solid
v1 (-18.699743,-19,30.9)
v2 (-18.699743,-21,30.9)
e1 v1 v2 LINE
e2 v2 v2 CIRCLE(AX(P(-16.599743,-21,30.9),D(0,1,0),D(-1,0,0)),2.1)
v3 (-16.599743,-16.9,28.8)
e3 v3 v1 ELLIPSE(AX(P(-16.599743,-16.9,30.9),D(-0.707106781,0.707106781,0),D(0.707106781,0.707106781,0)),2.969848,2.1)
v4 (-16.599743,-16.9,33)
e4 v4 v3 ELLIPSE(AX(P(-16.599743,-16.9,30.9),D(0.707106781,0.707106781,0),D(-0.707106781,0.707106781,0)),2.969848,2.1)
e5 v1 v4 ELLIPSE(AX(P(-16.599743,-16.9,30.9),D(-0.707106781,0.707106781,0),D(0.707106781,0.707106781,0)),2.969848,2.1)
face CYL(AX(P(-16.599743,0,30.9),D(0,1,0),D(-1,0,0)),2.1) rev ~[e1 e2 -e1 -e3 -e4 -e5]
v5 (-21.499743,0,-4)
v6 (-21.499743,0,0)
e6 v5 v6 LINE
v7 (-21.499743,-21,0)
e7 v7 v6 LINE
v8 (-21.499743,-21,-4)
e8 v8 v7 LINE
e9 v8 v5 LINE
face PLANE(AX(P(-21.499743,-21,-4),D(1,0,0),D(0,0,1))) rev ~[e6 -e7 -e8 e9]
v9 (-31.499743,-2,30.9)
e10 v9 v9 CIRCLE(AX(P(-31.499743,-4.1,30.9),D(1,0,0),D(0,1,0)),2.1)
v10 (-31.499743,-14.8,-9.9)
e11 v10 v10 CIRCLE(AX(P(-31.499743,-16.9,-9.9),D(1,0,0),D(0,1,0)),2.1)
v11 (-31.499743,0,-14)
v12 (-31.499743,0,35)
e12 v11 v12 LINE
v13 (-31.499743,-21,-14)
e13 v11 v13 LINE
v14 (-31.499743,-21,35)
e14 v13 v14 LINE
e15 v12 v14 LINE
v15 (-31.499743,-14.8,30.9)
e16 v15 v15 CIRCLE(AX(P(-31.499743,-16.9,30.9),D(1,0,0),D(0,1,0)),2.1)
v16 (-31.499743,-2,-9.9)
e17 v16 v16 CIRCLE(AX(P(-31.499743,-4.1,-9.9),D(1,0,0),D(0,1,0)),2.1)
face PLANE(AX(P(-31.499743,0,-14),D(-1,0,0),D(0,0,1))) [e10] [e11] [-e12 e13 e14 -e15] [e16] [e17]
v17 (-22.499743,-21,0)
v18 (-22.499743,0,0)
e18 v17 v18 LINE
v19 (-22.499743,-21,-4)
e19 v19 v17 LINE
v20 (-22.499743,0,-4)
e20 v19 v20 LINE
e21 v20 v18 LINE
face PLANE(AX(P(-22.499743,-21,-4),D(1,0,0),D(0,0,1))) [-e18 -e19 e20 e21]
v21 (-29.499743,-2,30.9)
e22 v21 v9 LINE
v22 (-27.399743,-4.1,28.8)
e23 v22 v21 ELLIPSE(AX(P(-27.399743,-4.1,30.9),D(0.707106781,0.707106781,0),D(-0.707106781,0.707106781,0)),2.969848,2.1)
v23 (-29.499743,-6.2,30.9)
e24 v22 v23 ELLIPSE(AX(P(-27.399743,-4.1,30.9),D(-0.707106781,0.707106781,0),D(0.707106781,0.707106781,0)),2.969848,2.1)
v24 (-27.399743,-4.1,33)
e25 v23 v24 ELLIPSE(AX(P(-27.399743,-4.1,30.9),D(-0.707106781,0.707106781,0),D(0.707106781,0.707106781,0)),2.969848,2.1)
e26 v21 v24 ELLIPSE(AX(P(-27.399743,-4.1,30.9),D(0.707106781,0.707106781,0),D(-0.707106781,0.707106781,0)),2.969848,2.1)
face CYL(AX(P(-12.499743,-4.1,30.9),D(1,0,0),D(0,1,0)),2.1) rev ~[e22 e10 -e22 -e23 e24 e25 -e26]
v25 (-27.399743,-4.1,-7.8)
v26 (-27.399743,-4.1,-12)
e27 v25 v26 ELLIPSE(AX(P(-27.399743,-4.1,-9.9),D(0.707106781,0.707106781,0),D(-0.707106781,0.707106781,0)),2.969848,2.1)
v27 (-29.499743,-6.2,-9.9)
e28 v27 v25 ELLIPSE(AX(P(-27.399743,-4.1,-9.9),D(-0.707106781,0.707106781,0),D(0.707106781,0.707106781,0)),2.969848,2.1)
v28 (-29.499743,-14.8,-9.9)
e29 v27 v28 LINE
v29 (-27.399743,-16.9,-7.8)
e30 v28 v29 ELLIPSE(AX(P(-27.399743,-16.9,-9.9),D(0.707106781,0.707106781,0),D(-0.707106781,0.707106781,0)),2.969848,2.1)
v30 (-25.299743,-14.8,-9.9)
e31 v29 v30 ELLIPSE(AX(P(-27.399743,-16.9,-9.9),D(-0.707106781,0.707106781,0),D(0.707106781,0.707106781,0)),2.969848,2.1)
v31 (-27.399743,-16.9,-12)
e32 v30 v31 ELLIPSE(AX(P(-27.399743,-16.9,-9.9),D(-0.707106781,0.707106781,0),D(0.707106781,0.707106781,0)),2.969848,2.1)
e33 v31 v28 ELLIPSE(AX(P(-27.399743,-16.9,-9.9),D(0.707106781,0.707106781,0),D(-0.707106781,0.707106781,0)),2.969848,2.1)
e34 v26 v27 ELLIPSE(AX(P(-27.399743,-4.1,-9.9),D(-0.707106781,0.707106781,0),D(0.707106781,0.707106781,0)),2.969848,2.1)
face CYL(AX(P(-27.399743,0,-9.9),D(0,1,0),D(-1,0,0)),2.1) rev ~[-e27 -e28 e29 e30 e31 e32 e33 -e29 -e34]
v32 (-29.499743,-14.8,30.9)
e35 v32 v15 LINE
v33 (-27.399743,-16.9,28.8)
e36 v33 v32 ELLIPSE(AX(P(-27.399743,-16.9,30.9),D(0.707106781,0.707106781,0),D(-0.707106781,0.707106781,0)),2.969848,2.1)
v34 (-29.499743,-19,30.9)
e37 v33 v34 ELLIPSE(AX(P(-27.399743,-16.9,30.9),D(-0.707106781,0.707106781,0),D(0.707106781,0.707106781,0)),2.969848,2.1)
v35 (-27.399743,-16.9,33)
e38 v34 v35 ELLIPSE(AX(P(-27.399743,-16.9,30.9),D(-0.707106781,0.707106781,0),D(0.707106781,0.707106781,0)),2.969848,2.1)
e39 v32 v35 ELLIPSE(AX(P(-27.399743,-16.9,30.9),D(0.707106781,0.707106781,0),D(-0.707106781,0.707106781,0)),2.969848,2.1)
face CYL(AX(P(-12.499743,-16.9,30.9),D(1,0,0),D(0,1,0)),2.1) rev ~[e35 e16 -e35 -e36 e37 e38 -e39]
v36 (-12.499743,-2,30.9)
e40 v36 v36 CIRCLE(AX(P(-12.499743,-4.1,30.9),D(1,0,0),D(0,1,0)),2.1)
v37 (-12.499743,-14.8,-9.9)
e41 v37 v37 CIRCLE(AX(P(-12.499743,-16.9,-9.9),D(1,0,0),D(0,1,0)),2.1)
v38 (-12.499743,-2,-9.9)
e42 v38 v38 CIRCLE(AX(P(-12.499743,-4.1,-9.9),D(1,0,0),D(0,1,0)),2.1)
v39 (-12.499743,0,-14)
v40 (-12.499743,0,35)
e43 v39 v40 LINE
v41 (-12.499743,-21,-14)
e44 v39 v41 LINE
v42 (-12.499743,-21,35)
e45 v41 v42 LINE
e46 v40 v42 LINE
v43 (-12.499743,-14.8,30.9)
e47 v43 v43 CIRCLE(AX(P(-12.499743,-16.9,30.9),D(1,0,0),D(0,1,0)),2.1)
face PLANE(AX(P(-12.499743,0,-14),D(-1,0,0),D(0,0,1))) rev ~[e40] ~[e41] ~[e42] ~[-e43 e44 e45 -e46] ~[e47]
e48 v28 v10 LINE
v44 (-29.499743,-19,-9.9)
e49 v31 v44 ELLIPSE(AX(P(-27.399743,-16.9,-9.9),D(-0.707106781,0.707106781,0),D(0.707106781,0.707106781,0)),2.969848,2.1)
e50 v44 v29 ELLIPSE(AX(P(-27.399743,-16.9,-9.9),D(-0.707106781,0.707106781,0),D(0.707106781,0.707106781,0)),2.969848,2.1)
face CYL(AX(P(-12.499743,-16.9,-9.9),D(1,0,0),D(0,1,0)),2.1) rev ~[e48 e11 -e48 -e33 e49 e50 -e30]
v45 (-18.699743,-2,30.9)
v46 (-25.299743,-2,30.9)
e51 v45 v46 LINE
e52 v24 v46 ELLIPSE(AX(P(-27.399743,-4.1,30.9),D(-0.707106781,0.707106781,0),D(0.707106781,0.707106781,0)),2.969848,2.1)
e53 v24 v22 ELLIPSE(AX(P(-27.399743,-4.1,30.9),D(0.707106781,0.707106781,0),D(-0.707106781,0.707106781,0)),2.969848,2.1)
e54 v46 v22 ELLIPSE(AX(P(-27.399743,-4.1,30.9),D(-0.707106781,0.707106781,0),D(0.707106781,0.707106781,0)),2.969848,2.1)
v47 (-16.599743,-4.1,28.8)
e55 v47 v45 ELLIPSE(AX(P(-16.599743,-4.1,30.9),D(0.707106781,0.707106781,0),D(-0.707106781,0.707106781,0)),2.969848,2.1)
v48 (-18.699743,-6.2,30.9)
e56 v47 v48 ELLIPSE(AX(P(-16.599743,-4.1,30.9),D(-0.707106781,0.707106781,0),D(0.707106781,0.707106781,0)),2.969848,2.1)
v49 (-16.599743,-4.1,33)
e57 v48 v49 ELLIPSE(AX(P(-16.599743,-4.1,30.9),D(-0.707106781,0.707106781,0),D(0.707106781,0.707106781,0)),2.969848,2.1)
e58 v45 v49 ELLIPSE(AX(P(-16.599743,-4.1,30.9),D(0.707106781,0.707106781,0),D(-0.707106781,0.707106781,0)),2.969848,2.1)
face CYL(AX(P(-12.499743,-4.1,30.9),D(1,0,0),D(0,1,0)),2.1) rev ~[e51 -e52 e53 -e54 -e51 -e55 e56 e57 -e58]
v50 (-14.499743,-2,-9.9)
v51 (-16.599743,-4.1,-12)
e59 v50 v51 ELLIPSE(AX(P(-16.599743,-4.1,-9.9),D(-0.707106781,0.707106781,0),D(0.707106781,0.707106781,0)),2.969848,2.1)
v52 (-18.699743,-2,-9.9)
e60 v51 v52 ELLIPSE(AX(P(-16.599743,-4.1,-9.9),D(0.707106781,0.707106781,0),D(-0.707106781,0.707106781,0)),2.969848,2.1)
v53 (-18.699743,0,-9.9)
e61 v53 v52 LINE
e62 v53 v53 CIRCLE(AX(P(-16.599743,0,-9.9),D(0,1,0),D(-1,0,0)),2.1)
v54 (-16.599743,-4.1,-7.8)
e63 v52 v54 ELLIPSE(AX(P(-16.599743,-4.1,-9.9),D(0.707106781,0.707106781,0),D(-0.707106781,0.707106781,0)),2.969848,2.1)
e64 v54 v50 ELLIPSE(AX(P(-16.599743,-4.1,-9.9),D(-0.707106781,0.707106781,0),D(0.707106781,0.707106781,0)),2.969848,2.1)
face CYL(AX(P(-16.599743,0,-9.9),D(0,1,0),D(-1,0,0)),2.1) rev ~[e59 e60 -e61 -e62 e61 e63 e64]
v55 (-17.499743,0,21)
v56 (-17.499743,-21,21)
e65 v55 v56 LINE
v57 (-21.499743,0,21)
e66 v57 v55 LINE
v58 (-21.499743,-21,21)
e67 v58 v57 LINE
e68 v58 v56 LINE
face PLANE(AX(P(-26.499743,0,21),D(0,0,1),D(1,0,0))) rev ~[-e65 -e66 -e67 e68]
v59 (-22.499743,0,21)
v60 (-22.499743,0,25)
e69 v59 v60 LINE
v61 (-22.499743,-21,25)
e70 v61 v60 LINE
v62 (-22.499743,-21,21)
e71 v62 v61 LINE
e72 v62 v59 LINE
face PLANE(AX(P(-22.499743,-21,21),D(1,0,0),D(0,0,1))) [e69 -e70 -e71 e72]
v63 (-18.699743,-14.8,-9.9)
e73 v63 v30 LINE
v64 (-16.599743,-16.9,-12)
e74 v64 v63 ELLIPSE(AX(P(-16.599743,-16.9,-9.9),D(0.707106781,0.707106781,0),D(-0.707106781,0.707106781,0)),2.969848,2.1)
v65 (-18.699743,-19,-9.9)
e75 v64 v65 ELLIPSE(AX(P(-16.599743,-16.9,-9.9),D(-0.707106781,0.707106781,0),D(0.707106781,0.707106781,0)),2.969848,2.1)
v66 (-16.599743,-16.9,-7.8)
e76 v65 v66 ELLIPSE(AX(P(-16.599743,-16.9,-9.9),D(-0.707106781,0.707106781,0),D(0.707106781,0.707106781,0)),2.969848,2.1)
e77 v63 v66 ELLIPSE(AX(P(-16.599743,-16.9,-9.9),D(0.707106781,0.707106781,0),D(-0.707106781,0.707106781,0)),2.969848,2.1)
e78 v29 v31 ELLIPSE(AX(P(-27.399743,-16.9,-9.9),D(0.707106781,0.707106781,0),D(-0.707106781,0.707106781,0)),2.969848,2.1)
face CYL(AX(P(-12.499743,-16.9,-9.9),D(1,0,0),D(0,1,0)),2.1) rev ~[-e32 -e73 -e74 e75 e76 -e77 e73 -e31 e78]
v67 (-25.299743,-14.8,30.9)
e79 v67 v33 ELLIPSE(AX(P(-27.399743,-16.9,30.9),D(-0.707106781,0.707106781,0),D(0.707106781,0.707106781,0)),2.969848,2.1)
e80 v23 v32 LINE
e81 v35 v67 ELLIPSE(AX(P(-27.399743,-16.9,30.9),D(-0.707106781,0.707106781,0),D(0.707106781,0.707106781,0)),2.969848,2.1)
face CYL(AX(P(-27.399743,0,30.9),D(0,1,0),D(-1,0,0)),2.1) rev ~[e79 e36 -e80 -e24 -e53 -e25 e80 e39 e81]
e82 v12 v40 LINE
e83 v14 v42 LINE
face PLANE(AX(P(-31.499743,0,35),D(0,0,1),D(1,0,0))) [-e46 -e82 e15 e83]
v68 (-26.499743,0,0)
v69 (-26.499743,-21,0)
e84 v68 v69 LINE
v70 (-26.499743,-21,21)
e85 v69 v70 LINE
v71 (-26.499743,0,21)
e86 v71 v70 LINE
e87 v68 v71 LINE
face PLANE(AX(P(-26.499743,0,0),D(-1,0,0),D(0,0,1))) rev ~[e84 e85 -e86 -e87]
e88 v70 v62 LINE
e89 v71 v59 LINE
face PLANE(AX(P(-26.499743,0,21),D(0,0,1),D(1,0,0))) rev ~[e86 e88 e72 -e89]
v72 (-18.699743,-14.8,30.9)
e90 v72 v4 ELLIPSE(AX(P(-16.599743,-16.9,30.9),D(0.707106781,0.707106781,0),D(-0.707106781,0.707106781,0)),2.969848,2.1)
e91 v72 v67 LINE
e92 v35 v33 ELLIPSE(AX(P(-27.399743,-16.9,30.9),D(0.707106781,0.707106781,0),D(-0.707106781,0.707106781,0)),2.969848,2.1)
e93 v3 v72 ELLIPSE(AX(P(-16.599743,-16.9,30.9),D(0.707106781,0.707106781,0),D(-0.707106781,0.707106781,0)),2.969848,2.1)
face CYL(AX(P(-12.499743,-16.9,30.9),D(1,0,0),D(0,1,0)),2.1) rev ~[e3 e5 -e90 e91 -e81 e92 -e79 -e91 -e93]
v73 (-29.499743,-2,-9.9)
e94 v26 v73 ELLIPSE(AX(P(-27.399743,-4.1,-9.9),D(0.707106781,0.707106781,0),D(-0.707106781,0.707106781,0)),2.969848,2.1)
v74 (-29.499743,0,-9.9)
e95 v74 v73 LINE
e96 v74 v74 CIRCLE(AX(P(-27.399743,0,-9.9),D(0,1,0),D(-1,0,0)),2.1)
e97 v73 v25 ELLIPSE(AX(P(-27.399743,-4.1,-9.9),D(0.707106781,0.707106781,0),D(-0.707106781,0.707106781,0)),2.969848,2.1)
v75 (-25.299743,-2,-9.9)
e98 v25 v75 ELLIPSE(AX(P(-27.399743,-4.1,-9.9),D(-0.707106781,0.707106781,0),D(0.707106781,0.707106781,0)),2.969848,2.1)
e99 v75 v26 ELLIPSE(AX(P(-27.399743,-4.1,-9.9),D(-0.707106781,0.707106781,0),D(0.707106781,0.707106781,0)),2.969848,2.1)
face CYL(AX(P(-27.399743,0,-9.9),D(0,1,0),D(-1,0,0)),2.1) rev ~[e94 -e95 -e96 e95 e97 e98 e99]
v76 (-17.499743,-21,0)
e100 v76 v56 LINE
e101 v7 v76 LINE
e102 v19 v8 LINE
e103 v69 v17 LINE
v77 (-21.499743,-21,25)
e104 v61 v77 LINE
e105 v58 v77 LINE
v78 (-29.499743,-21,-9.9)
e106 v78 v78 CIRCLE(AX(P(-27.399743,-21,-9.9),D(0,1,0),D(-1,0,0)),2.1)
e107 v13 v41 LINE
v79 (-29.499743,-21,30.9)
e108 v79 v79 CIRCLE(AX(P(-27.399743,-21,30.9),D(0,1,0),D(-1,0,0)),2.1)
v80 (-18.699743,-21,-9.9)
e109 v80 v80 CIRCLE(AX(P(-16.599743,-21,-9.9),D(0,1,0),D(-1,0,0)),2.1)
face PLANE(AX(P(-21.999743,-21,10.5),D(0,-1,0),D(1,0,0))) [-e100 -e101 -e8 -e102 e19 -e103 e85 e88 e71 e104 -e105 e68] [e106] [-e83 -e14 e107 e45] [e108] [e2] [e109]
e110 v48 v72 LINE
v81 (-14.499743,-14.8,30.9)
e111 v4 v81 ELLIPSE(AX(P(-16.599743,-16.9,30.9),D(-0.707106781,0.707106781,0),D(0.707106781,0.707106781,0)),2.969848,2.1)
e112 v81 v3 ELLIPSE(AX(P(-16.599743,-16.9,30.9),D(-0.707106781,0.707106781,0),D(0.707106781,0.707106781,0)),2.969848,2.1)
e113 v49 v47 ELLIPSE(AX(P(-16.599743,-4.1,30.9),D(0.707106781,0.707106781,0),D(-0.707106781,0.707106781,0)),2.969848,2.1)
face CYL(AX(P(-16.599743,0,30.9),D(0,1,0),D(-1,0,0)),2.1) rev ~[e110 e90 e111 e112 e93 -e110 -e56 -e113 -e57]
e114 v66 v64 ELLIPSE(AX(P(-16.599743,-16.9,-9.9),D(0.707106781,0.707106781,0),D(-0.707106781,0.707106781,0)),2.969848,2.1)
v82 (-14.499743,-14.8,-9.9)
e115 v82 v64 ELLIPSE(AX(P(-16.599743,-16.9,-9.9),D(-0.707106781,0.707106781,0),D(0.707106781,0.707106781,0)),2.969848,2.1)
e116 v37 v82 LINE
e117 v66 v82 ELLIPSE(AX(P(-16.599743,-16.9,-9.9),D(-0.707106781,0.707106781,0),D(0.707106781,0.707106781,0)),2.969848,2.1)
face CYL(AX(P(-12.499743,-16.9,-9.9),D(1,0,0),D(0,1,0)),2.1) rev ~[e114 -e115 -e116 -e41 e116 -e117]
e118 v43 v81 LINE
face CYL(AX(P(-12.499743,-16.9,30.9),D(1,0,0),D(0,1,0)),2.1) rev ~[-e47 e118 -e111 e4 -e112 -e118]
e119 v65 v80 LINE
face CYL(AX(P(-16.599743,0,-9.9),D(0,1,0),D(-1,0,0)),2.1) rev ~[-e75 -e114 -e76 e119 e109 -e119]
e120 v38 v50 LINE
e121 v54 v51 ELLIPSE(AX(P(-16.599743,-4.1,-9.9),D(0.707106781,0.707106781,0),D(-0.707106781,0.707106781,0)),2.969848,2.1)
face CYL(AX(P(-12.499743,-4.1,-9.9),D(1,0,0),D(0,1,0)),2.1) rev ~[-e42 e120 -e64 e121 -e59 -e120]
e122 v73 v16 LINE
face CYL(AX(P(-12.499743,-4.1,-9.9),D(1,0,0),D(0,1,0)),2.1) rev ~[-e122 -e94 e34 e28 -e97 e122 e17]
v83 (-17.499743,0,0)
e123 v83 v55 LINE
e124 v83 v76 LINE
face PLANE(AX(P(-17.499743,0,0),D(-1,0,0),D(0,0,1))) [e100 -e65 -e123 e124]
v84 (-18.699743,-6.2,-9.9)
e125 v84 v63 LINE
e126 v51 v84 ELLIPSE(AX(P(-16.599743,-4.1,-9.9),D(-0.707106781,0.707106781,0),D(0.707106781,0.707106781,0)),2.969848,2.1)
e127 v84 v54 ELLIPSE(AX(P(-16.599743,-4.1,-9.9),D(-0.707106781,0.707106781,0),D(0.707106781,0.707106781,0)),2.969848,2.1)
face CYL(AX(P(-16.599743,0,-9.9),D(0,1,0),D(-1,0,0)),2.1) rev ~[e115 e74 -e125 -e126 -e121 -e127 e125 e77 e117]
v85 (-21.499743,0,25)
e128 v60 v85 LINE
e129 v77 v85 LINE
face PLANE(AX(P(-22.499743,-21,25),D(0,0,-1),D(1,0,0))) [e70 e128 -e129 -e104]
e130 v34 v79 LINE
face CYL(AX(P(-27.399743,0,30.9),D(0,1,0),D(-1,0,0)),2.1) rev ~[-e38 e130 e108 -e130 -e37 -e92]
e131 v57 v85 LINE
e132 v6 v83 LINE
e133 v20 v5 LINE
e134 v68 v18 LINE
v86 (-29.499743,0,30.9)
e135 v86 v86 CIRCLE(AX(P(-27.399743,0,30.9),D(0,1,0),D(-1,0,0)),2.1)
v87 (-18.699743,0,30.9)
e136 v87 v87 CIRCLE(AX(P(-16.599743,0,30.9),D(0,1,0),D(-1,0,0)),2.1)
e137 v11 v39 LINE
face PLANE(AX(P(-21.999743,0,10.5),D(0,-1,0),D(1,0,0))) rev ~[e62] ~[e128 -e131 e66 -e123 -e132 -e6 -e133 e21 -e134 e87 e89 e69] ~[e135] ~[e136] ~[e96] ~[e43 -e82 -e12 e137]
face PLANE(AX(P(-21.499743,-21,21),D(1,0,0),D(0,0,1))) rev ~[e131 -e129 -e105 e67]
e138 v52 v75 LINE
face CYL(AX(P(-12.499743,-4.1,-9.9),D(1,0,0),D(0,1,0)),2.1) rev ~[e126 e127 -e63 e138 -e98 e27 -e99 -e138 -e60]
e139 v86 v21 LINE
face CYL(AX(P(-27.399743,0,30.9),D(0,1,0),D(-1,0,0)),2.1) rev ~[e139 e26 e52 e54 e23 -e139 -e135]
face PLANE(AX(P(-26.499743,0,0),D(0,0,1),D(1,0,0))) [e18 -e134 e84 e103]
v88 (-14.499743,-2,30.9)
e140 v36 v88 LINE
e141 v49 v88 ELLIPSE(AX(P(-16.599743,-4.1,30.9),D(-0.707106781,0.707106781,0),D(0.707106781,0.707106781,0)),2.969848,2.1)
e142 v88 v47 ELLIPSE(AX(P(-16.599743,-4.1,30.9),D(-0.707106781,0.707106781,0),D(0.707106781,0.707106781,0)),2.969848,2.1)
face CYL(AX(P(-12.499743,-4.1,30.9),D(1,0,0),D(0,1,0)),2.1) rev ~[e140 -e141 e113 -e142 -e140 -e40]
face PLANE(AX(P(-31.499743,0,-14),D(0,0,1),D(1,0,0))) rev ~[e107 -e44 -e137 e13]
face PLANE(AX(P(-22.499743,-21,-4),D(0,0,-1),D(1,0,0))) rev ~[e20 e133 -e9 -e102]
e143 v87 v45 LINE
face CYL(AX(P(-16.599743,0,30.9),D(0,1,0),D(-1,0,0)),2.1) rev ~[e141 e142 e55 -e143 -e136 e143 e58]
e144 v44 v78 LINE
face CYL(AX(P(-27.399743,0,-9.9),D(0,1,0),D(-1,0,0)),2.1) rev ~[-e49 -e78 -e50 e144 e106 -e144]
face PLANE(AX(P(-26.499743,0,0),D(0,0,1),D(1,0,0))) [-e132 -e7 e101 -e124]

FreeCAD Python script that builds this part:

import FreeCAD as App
import Part
import Sketcher
Q = App.Units.Quantity


def add_polygon(sketch, points):
    """Adds a closed chain of lines whose ends are joined by coincident constraints."""
    first, n = sketch.GeometryCount, len(points)
    for a, b in zip(points, points[1:] + points[:1]):
        sketch.addGeometry(Part.LineSegment(App.Vector(*a, 0), App.Vector(*b, 0)), False)
    for i in range(n):
        sketch.addConstraint(Sketcher.Constraint("Coincident", first + i, 2, first + (i + 1) % n, 1))

doc = App.newDocument("Part")
params = doc.addObject("Spreadsheet::Sheet", "Params")
for row, (alias, value) in enumerate([
    ("sketch1_width", "19 mm"),
    ("sketch1_width2", "9 mm"),
    ("sketch1_height", "49 mm"),
    ("sketch1_height2", "21 mm"),
    ("pad1_length", "21 mm"),
    ("sketch2_width", "1 mm"),
    ("sketch2_height", "4 mm"),
    ("pocket1_length", "25 mm"),
    ("sketch3_diameter", "4.2 mm"),
    ("pocket2_length", "25 mm"),
    ("sketch4_diameter", "4.2 mm"),
    ("pocket3_length", "25 mm"),
], start=1):
    params.set(f"A{row}", alias)
    params.set(f"B{row}", "=" + value)
    params.setAlias(f"B{row}", alias)

body = doc.addObject("PartDesign::Body", "Body")

# Sketch on XZ plane
sketch1 = body.newObject("Sketcher::SketchObject", "Sketch")
sketch1.AttachmentSupport = (doc.getObject("XZ_Plane"), [""])
sketch1.MapMode = "FlatFace"
add_polygon(sketch1, [(-31, 35), (-31, -14), (-12, -14), (-12, 35)])  # lines 0-3
add_polygon(sketch1, [(-17, 0), (-26, 0), (-26, 21), (-17, 21)])  # lines 4-7
sketch1.addConstraint([
    Sketcher.Constraint("Vertical", 0),
    Sketcher.Constraint("Horizontal", 1),
    Sketcher.Constraint("Vertical", 2),
    Sketcher.Constraint("Horizontal", 3),
    Sketcher.Constraint("Horizontal", 4),
    Sketcher.Constraint("Vertical", 5),
    Sketcher.Constraint("Horizontal", 6),
    Sketcher.Constraint("Vertical", 7),
    Sketcher.Constraint("PointOnObject", 4, 2, -1),
    Sketcher.Constraint("DistanceX", 1, 1, 1, 2, Q("19 mm")),
    Sketcher.Constraint("DistanceX", 4, 2, 4, 1, Q("9 mm")),
    Sketcher.Constraint("DistanceY", 0, 2, 0, 1, Q("49 mm")),
    Sketcher.Constraint("DistanceY", 5, 1, 5, 2, Q("21 mm")),
    Sketcher.Constraint("DistanceY", 0, 2, -1, 1, Q("14 mm")),
    Sketcher.Constraint("DistanceX", 0, 2, 4, 2, Q("5 mm")),
    Sketcher.Constraint("DistanceX", 0, 2, -1, 1, Q("31.499743 mm")),
])
sketch1.setExpression("Constraints[17]", "Params.sketch1_width")
sketch1.setExpression("Constraints[18]", "Params.sketch1_width2")
sketch1.setExpression("Constraints[19]", "Params.sketch1_height")
sketch1.setExpression("Constraints[20]", "Params.sketch1_height2")
pad1 = body.newObject("PartDesign::Pad", "Pad")
pad1.Profile = sketch1
pad1.setExpression("Length", "Params.pad1_length")

# Sketch on XZ plane
sketch2 = body.newObject("Sketcher::SketchObject", "Sketch001")
sketch2.AttachmentSupport = (doc.getObject("XZ_Plane"), [""])
sketch2.MapMode = "FlatFace"
sketch2.AttachmentOffset = App.Placement(App.Vector(0, 0, 21), App.Rotation())
add_polygon(sketch2, [(-22.5, 25), (-22.5, 21), (-21.5, 21), (-21.5, 25)])  # lines 0-3
add_polygon(sketch2, [(-22.5, 0), (-22.5, -4), (-21.5, -4), (-21.5, 0)])  # lines 4-7
sketch2.addConstraint([
    Sketcher.Constraint("Vertical", 0),
    Sketcher.Constraint("Horizontal", 1),
    Sketcher.Constraint("Vertical", 2),
    Sketcher.Constraint("Horizontal", 3),
    Sketcher.Constraint("Vertical", 4),
    Sketcher.Constraint("Horizontal", 5),
    Sketcher.Constraint("Vertical", 6),
    Sketcher.Constraint("Horizontal", 7),
    Sketcher.Constraint("PointOnObject", 6, 2, -1),
    Sketcher.Constraint("Vertical", 3, 2, 4, 2),
    Sketcher.Constraint("Vertical", 2, 2, 5, 2),
    Sketcher.Constraint("Equal", 2, 4),
    Sketcher.Constraint("DistanceX", 1, 1, 1, 2, Q("1 mm")),
    Sketcher.Constraint("DistanceY", 0, 2, 0, 1, Q("4 mm")),
    Sketcher.Constraint("DistanceY", -1, 1, 0, 2, Q("21 mm")),
    Sketcher.Constraint("DistanceX", 0, 2, -1, 1, Q("22.499743 mm")),
])
sketch2.setExpression("Constraints[20]", "Params.sketch2_width")
sketch2.setExpression("Constraints[21]", "Params.sketch2_height")
pocket1 = body.newObject("PartDesign::Pocket", "Pocket")
pocket1.Profile = sketch2
pocket1.setExpression("Length", "Params.pocket1_length")

# Sketch on XZ plane
sketch3 = body.newObject("Sketcher::SketchObject", "Sketch002")
sketch3.AttachmentSupport = (doc.getObject("XZ_Plane"), [""])
sketch3.MapMode = "FlatFace"
sketch3.addGeometry([
    Part.Circle(App.Vector(-16.6, 30.9, 0), App.Vector(0, 0, 1), 2.1),
    Part.Circle(App.Vector(-16.6, -9.9, 0), App.Vector(0, 0, 1), 2.1),
    Part.Circle(App.Vector(-27.4, -9.9, 0), App.Vector(0, 0, 1), 2.1),
    Part.Circle(App.Vector(-27.4, 30.9, 0), App.Vector(0, 0, 1), 2.1),
], False)
sketch3.addConstraint([
    Sketcher.Constraint("Equal", 0, 1),
    Sketcher.Constraint("Equal", 1, 2),
    Sketcher.Constraint("Equal", 2, 3),
    Sketcher.Constraint("Horizontal", 1, 3, 2, 3),
    Sketcher.Constraint("Horizontal", 0, 3, 3, 3),
    Sketcher.Constraint("Vertical", 0, 3, 1, 3),
    Sketcher.Constraint("Vertical", 2, 3, 3, 3),
    Sketcher.Constraint("Diameter", 0, Q("4.2 mm")),
    Sketcher.Constraint("DistanceY", -1, 1, 0, 3, Q("30.9 mm")),
    Sketcher.Constraint("DistanceY", 1, 3, -1, 1, Q("9.9 mm")),
    Sketcher.Constraint("DistanceX", 2, 3, 1, 3, Q("10.8 mm")),
    Sketcher.Constraint("DistanceX", 0, 3, -1, 1, Q("16.599743 mm")),
])
sketch3.setExpression("Constraints[7]", "Params.sketch3_diameter")
pocket2 = body.newObject("PartDesign::Pocket", "Pocket001")
pocket2.Profile = sketch3
pocket2.setExpression("Length", "Params.pocket2_length")
pocket2.Reversed = True

# Sketch on YZ plane
sketch4 = body.newObject("Sketcher::SketchObject", "Sketch003")
sketch4.AttachmentSupport = (doc.getObject("YZ_Plane"), [""])
sketch4.MapMode = "FlatFace"
sketch4.AttachmentOffset = App.Placement(App.Vector(0, 0, -12.499743), App.Rotation())
sketch4.addGeometry([
    Part.Circle(App.Vector(-16.9, 30.9, 0), App.Vector(0, 0, 1), 2.1),
    Part.Circle(App.Vector(-16.9, -9.9, 0), App.Vector(0, 0, 1), 2.1),
    Part.Circle(App.Vector(-4.1, 30.9, 0), App.Vector(0, 0, 1), 2.1),
    Part.Circle(App.Vector(-4.1, -9.9, 0), App.Vector(0, 0, 1), 2.1),
], False)
sketch4.addConstraint([
    Sketcher.Constraint("Equal", 0, 1),
    Sketcher.Constraint("Equal", 1, 2),
    Sketcher.Constraint("Equal", 2, 3),
    Sketcher.Constraint("Horizontal", 0, 3, 2, 3),
    Sketcher.Constraint("Horizontal", 1, 3, 3, 3),
    Sketcher.Constraint("Vertical", 0, 3, 1, 3),
    Sketcher.Constraint("Vertical", 2, 3, 3, 3),
    Sketcher.Constraint("Diameter", 0, Q("4.2 mm")),
    Sketcher.Constraint("DistanceX", 0, 3, -1, 1, Q("16.9 mm")),
    Sketcher.Constraint("DistanceY", -1, 1, 0, 3, Q("30.9 mm")),
    Sketcher.Constraint("DistanceY", 1, 3, -1, 1, Q("9.9 mm")),
    Sketcher.Constraint("DistanceX", 2, 3, -1, 1, Q("4.1 mm")),
])
sketch4.setExpression("Constraints[7]", "Params.sketch4_diameter")
pocket3 = body.newObject("PartDesign::Pocket", "Pocket002")
pocket3.Profile = sketch4
pocket3.setExpression("Length", "Params.pocket3_length")

doc.recompute()
